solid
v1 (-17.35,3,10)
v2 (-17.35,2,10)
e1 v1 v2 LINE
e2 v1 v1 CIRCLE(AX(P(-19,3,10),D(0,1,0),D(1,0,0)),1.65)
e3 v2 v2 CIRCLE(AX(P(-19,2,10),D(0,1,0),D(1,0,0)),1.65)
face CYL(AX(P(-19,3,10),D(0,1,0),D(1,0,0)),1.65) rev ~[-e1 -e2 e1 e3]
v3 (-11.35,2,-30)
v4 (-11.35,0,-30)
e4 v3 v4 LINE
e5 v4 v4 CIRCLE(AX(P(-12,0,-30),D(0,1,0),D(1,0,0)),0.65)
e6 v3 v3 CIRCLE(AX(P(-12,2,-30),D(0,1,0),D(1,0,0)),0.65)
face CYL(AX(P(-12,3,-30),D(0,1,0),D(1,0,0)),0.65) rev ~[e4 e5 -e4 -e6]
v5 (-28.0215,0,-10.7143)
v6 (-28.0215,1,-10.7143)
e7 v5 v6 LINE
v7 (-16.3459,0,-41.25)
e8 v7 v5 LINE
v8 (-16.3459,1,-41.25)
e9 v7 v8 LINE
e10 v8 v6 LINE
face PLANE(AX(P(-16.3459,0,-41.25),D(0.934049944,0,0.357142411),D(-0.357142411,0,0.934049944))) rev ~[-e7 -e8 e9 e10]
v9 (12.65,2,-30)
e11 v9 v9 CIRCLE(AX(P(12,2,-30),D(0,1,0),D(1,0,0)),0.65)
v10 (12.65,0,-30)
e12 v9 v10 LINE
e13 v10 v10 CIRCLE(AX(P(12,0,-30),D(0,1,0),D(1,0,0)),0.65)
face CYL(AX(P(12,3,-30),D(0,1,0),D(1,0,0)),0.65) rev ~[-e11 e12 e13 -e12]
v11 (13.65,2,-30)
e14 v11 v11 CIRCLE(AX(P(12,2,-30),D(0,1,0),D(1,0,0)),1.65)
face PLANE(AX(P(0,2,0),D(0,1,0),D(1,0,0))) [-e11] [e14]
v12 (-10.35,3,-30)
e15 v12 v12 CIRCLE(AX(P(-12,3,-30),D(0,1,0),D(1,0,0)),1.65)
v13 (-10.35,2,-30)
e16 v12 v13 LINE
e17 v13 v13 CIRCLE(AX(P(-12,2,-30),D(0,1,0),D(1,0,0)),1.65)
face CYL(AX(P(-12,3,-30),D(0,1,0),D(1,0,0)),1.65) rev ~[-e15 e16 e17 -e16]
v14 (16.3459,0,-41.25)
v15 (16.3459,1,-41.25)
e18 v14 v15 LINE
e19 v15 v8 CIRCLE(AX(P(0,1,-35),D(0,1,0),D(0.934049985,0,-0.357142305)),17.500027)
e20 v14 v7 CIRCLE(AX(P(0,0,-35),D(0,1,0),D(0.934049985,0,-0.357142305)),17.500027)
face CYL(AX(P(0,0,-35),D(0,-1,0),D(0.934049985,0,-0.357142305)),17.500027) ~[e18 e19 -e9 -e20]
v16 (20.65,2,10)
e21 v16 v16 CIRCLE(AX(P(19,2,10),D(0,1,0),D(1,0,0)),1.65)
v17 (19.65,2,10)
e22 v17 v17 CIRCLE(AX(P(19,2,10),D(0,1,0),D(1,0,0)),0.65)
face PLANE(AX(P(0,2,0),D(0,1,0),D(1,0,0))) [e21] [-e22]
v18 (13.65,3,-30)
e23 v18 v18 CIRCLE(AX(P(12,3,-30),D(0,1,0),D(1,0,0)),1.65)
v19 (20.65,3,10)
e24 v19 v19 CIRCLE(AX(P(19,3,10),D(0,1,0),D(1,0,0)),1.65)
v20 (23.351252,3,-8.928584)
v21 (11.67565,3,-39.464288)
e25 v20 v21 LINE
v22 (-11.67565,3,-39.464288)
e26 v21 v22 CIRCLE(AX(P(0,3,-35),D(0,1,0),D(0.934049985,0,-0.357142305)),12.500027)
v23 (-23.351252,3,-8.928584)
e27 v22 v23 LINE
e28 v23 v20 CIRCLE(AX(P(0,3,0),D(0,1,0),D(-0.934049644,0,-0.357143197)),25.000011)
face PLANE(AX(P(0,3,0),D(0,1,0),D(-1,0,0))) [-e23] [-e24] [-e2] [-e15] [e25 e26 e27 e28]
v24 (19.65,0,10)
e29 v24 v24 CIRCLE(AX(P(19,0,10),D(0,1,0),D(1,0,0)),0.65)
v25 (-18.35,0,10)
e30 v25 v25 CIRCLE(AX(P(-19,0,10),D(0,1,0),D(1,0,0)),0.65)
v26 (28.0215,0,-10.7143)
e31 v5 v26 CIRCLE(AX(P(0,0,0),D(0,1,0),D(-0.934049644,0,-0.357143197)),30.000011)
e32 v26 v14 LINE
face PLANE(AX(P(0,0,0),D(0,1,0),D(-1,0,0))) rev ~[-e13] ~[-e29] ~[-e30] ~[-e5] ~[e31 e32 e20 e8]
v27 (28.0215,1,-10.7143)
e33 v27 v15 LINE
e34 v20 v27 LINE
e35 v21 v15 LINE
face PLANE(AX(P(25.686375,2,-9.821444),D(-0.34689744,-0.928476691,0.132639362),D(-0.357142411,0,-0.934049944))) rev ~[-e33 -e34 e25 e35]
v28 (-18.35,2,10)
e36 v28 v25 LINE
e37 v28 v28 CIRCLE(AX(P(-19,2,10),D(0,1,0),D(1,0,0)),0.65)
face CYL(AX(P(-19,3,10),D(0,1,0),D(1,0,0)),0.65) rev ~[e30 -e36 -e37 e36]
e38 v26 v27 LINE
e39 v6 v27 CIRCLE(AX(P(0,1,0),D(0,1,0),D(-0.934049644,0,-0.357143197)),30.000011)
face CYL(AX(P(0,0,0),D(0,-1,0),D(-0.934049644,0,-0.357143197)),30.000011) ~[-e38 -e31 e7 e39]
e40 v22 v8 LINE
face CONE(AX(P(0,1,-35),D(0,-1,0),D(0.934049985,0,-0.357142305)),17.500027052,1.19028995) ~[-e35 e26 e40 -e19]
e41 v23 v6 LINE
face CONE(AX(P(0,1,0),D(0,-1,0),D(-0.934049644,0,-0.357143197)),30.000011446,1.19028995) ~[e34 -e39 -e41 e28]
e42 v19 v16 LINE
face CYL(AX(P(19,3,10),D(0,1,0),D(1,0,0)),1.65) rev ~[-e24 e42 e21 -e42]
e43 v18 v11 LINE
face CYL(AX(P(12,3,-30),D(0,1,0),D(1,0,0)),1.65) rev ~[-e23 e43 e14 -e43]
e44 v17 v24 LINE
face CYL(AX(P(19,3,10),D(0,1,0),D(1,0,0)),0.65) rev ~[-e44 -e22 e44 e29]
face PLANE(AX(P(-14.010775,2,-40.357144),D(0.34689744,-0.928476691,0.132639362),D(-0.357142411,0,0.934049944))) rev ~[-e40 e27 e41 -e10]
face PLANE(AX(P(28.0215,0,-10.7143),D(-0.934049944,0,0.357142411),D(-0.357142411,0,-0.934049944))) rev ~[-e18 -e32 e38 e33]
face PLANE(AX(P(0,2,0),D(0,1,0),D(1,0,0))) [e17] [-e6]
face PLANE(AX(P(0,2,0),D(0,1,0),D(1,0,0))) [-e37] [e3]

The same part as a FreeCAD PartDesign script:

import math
import FreeCAD as App
import Part
import Sketcher
Q = App.Units.Quantity


def edges_at(feature, points):
    """Names of the edges that pass closest to the given points."""
    edges = feature.Shape.Edges
    near = lambda p: min(range(len(edges)), key=lambda i: edges[i].distToShape(Part.Vertex(*p))[0])
    return sorted({f"Edge{near(p) + 1}" for p in points})

doc = App.newDocument("Part")
body = doc.addObject("PartDesign::Body", "Body")

# Sketch on XZ plane
sketch1 = doc.addObject("Sketcher::SketchObject", "Sketch")
body.addObject(sketch1)
sketch1.AttachmentSupport = (doc.XZ_Plane, [""])
sketch1.MapMode = "FlatFace"
sketch1.addGeometry([
    Part.LineSegment(App.Vector(-16, -41, 0), App.Vector(-28, -11, 0)),
    Part.ArcOfCircle(Part.Circle(App.Vector(0, 0, 0), App.Vector(0, 0, 1), 30), math.radians(-21), math.radians(201)),
    Part.LineSegment(App.Vector(28, -11, 0), App.Vector(16, -41, 0)),
    Part.ArcOfCircle(Part.Circle(App.Vector(0, -35, 0), App.Vector(0, 0, 1), 18), math.radians(-159), math.radians(-21)),
], False)
sketch1.addConstraint([
    Sketcher.Constraint("Tangent", 0, 2, 1, 2),
    Sketcher.Constraint("Tangent", 1, 1, 2, 1),
    Sketcher.Constraint("Tangent", 2, 2, 3, 2),
    Sketcher.Constraint("Tangent", 3, 1, 0, 1),
    Sketcher.Constraint("Coincident", 1, 3, -1, 1),
    Sketcher.Constraint("PointOnObject", 3, 3, -2),
    Sketcher.Constraint("Radius", 1, Q("30 mm")),
    Sketcher.Constraint("Radius", 3, Q("17.5 mm")),
    Sketcher.Constraint("DistanceY", 3, 3, -1, 1, Q("35 mm")),
])
pad1 = doc.addObject("PartDesign::Pad", "Pad")
body.addObject(pad1)
pad1.Profile = sketch1
pad1.Length = 3
pad1.Reversed = True
doc.recompute()

chamfer = doc.addObject("PartDesign::Chamfer", "Chamfer")
body.addObject(chamfer)
chamfer.Base = (pad1, edges_at(pad1, [
    (0, 3, 30),
    (22.184, 3, -25.982),
    (0, 3, -52.5),
    (-22.184, 3, -25.982),
]))
chamfer.ChamferType = "Two distances"
chamfer.Size = 5
chamfer.Size2 = 2
chamfer.FlipDirection = True

# Sketch on XZ plane
sketch2 = doc.addObject("Sketcher::SketchObject", "Sketch001")
body.addObject(sketch2)
sketch2.AttachmentSupport = (doc.XZ_Plane, [""])
sketch2.MapMode = "FlatFace"
sketch2.AttachmentOffset = App.Placement(App.Vector(0, 0, -3), App.Rotation())
sketch2.addGeometry([
    Part.Circle(App.Vector(-19, 10, 0), App.Vector(0, 0, 1), 0.7),
    Part.Circle(App.Vector(19, 10, 0), App.Vector(0, 0, 1), 0.7),
    Part.Circle(App.Vector(-12, -30, 0), App.Vector(0, 0, 1), 0.7),
    Part.Circle(App.Vector(12, -30, 0), App.Vector(0, 0, 1), 0.7),
], False)
sketch2.addConstraint([
    Sketcher.Constraint("Equal", 0, 1),
    Sketcher.Constraint("Equal", 1, 2),
    Sketcher.Constraint("Equal", 2, 3),
    Sketcher.Constraint("Symmetric", 0, 3, 1, 3, -2),
    Sketcher.Constraint("Symmetric", 2, 3, 3, 3, -2),
    Sketcher.Constraint("Diameter", 0, Q("1.3 mm")),
    Sketcher.Constraint("DistanceX", 0, 3, -1, 1, Q("19 mm")),
    Sketcher.Constraint("DistanceY", -1, 1, 0, 3, Q("10 mm")),
    Sketcher.Constraint("DistanceX", 2, 3, -1, 1, Q("12 mm")),
    Sketcher.Constraint("DistanceY", 2, 3, -1, 1, Q("30 mm")),
])
pocket1 = doc.addObject("PartDesign::Pocket", "Pocket")
body.addObject(pocket1)
pocket1.Profile = sketch2
pocket1.Type = "ThroughAll"
pocket1.Reversed = True

# Sketch on XZ plane
sketch3 = doc.addObject("Sketcher::SketchObject", "Sketch002")
body.addObject(sketch3)
sketch3.AttachmentSupport = (doc.XZ_Plane, [""])
sketch3.MapMode = "FlatFace"
sketch3.AttachmentOffset = App.Placement(App.Vector(0, 0, -3), App.Rotation())
sketch3.addGeometry([
    Part.Circle(App.Vector(19, 10, 0), App.Vector(0, 0, 1), 1.6),
    Part.Circle(App.Vector(-19, 10, 0), App.Vector(0, 0, 1), 1.6),
    Part.Circle(App.Vector(12, -30, 0), App.Vector(0, 0, 1), 1.6),
    Part.Circle(App.Vector(-12, -30, 0), App.Vector(0, 0, 1), 1.6),
], False)
sketch3.addConstraint([
    Sketcher.Constraint("Equal", 0, 1),
    Sketcher.Constraint("Equal", 1, 2),
    Sketcher.Constraint("Equal", 2, 3),
    Sketcher.Constraint("Symmetric", 0, 3, 1, 3, -2),
    Sketcher.Constraint("Symmetric", 2, 3, 3, 3, -2),
    Sketcher.Constraint("Diameter", 0, Q("3.3 mm")),
    Sketcher.Constraint("DistanceX", -1, 1, 0, 3, Q("19 mm")),
    Sketcher.Constraint("DistanceY", -1, 1, 0, 3, Q("10 mm")),
    Sketcher.Constraint("DistanceX", -1, 1, 2, 3, Q("12 mm")),
    Sketcher.Constraint("DistanceY", 2, 3, -1, 1, Q("30 mm")),
])
pocket2 = doc.addObject("PartDesign::Pocket", "Pocket001")
body.addObject(pocket2)
pocket2.Profile = sketch3
pocket2.Length = 1
pocket2.Reversed = True

doc.recompute()
